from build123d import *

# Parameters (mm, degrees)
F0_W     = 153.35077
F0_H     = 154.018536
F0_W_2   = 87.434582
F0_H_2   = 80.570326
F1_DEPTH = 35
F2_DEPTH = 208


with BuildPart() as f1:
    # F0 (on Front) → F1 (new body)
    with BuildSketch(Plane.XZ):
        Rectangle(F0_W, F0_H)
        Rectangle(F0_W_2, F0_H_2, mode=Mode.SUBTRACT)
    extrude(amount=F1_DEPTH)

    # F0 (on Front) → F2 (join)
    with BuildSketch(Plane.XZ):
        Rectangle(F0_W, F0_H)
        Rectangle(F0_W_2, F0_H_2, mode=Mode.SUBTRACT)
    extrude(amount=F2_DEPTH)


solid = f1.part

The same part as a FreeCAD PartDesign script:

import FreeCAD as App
import Part
import Sketcher

V = App.Vector

doc = App.newDocument("Part")
params = doc.addObject("Spreadsheet::Sheet", "Params")
for row, (alias, value) in enumerate([
    ("pad1_length", "35 mm"),
    ("pad2_length", "208 mm"),
], start=1):
    params.set(f"A{row}", alias)
    params.set(f"B{row}", "=" + value)
    params.setAlias(f"B{row}", alias)

body = doc.addObject("PartDesign::Body", "Body")

sketch1 = body.newObject("Sketcher::SketchObject", "Sketch")
sketch1.AttachmentSupport = (doc.getObject("XZ_Plane"), [""])
sketch1.MapMode = "FlatFace"
sketch1.addGeometry([
    Part.LineSegment(V(-76.675385, 77.009268, 0), V(-76.675385, -77.009268, 0)),
    Part.LineSegment(V(-76.675385, -77.009268, 0), V(76.675385, -77.009268, 0)),
    Part.LineSegment(V(76.675385, -77.009268, 0), V(76.675385, 77.009268, 0)),
    Part.LineSegment(V(76.675385, 77.009268, 0), V(-76.675385, 77.009268, 0)),
    Part.LineSegment(V(43.717291, -40.285163, 0), V(-43.717291, -40.285163, 0)),
    Part.LineSegment(V(-43.717291, -40.285163, 0), V(-43.717291, 40.285163, 0)),
    Part.LineSegment(V(-43.717291, 40.285163, 0), V(43.717291, 40.285163, 0)),
    Part.LineSegment(V(43.717291, 40.285163, 0), V(43.717291, -40.285163, 0)),
], False)
sketch1.addConstraint([
    Sketcher.Constraint("Coincident", 0, 2, 1, 1),
    Sketcher.Constraint("Coincident", 1, 2, 2, 1),
    Sketcher.Constraint("Coincident", 2, 2, 3, 1),
    Sketcher.Constraint("Coincident", 3, 2, 0, 1),
    Sketcher.Constraint("Coincident", 4, 2, 5, 1),
    Sketcher.Constraint("Coincident", 5, 2, 6, 1),
    Sketcher.Constraint("Coincident", 6, 2, 7, 1),
    Sketcher.Constraint("Coincident", 7, 2, 4, 1),
    Sketcher.Constraint("Vertical", 0),
    Sketcher.Constraint("Horizontal", 1),
    Sketcher.Constraint("Vertical", 2),
    Sketcher.Constraint("Horizontal", 3),
    Sketcher.Constraint("Horizontal", 4),
    Sketcher.Constraint("Vertical", 5),
    Sketcher.Constraint("Horizontal", 6),
    Sketcher.Constraint("Vertical", 7),
    Sketcher.Constraint("Symmetric", 0, 2, 2, 2, -1, 1),
    Sketcher.Constraint("Symmetric", 4, 2, 6, 2, -1, 1),
    Sketcher.Constraint("DistanceX", 1, 1, 1, 2, 153.35077),
    Sketcher.Constraint("DistanceX", 4, 2, 4, 1, 87.434582),
    Sketcher.Constraint("DistanceY", 0, 2, 0, 1, 154.018536),
    Sketcher.Constraint("DistanceY", 5, 1, 5, 2, 80.570326),
])
pad1 = body.newObject("PartDesign::Pad", "Pad")
pad1.Profile = sketch1
pad1.setExpression("Length", "Params.pad1_length")

sketch2 = body.newObject("Sketcher::SketchObject", "Sketch001")
sketch2.AttachmentSupport = (doc.getObject("XZ_Plane"), [""])
sketch2.MapMode = "FlatFace"
sketch2.addGeometry([
    Part.LineSegment(V(-76.675385, 77.009268, 0), V(-76.675385, -77.009268, 0)),
    Part.LineSegment(V(-76.675385, -77.009268, 0), V(76.675385, -77.009268, 0)),
    Part.LineSegment(V(76.675385, -77.009268, 0), V(76.675385, 77.009268, 0)),
    Part.LineSegment(V(76.675385, 77.009268, 0), V(-76.675385, 77.009268, 0)),
    Part.LineSegment(V(43.717291, -40.285163, 0), V(-43.717291, -40.285163, 0)),
    Part.LineSegment(V(-43.717291, -40.285163, 0), V(-43.717291, 40.285163, 0)),
    Part.LineSegment(V(-43.717291, 40.285163, 0), V(43.717291, 40.285163, 0)),
    Part.LineSegment(V(43.717291, 40.285163, 0), V(43.717291, -40.285163, 0)),
], False)
sketch2.addConstraint([
    Sketcher.Constraint("Coincident", 0, 2, 1, 1),
    Sketcher.Constraint("Coincident", 1, 2, 2, 1),
    Sketcher.Constraint("Coincident", 2, 2, 3, 1),
    Sketcher.Constraint("Coincident", 3, 2, 0, 1),
    Sketcher.Constraint("Coincident", 4, 2, 5, 1),
    Sketcher.Constraint("Coincident", 5, 2, 6, 1),
    Sketcher.Constraint("Coincident", 6, 2, 7, 1),
    Sketcher.Constraint("Coincident", 7, 2, 4, 1),
    Sketcher.Constraint("Vertical", 0),
    Sketcher.Constraint("Horizontal", 1),
    Sketcher.Constraint("Vertical", 2),
    Sketcher.Constraint("Horizontal", 3),
    Sketcher.Constraint("Horizontal", 4),
    Sketcher.Constraint("Vertical", 5),
    Sketcher.Constraint("Horizontal", 6),
    Sketcher.Constraint("Vertical", 7),
    Sketcher.Constraint("Symmetric", 0, 2, 2, 2, -1, 1),
    Sketcher.Constraint("Symmetric", 4, 2, 6, 2, -1, 1),
    Sketcher.Constraint("DistanceX", 1, 1, 1, 2, 153.35077),
    Sketcher.Constraint("DistanceX", 4, 2, 4, 1, 87.434582),
    Sketcher.Constraint("DistanceY", 0, 2, 0, 1, 154.018536),
    Sketcher.Constraint("DistanceY", 5, 1, 5, 2, 80.570326),
])
pad2 = body.newObject("PartDesign::Pad", "Pad001")
pad2.Profile = sketch2
pad2.setExpression("Length", "Params.pad2_length")

doc.recompute()
